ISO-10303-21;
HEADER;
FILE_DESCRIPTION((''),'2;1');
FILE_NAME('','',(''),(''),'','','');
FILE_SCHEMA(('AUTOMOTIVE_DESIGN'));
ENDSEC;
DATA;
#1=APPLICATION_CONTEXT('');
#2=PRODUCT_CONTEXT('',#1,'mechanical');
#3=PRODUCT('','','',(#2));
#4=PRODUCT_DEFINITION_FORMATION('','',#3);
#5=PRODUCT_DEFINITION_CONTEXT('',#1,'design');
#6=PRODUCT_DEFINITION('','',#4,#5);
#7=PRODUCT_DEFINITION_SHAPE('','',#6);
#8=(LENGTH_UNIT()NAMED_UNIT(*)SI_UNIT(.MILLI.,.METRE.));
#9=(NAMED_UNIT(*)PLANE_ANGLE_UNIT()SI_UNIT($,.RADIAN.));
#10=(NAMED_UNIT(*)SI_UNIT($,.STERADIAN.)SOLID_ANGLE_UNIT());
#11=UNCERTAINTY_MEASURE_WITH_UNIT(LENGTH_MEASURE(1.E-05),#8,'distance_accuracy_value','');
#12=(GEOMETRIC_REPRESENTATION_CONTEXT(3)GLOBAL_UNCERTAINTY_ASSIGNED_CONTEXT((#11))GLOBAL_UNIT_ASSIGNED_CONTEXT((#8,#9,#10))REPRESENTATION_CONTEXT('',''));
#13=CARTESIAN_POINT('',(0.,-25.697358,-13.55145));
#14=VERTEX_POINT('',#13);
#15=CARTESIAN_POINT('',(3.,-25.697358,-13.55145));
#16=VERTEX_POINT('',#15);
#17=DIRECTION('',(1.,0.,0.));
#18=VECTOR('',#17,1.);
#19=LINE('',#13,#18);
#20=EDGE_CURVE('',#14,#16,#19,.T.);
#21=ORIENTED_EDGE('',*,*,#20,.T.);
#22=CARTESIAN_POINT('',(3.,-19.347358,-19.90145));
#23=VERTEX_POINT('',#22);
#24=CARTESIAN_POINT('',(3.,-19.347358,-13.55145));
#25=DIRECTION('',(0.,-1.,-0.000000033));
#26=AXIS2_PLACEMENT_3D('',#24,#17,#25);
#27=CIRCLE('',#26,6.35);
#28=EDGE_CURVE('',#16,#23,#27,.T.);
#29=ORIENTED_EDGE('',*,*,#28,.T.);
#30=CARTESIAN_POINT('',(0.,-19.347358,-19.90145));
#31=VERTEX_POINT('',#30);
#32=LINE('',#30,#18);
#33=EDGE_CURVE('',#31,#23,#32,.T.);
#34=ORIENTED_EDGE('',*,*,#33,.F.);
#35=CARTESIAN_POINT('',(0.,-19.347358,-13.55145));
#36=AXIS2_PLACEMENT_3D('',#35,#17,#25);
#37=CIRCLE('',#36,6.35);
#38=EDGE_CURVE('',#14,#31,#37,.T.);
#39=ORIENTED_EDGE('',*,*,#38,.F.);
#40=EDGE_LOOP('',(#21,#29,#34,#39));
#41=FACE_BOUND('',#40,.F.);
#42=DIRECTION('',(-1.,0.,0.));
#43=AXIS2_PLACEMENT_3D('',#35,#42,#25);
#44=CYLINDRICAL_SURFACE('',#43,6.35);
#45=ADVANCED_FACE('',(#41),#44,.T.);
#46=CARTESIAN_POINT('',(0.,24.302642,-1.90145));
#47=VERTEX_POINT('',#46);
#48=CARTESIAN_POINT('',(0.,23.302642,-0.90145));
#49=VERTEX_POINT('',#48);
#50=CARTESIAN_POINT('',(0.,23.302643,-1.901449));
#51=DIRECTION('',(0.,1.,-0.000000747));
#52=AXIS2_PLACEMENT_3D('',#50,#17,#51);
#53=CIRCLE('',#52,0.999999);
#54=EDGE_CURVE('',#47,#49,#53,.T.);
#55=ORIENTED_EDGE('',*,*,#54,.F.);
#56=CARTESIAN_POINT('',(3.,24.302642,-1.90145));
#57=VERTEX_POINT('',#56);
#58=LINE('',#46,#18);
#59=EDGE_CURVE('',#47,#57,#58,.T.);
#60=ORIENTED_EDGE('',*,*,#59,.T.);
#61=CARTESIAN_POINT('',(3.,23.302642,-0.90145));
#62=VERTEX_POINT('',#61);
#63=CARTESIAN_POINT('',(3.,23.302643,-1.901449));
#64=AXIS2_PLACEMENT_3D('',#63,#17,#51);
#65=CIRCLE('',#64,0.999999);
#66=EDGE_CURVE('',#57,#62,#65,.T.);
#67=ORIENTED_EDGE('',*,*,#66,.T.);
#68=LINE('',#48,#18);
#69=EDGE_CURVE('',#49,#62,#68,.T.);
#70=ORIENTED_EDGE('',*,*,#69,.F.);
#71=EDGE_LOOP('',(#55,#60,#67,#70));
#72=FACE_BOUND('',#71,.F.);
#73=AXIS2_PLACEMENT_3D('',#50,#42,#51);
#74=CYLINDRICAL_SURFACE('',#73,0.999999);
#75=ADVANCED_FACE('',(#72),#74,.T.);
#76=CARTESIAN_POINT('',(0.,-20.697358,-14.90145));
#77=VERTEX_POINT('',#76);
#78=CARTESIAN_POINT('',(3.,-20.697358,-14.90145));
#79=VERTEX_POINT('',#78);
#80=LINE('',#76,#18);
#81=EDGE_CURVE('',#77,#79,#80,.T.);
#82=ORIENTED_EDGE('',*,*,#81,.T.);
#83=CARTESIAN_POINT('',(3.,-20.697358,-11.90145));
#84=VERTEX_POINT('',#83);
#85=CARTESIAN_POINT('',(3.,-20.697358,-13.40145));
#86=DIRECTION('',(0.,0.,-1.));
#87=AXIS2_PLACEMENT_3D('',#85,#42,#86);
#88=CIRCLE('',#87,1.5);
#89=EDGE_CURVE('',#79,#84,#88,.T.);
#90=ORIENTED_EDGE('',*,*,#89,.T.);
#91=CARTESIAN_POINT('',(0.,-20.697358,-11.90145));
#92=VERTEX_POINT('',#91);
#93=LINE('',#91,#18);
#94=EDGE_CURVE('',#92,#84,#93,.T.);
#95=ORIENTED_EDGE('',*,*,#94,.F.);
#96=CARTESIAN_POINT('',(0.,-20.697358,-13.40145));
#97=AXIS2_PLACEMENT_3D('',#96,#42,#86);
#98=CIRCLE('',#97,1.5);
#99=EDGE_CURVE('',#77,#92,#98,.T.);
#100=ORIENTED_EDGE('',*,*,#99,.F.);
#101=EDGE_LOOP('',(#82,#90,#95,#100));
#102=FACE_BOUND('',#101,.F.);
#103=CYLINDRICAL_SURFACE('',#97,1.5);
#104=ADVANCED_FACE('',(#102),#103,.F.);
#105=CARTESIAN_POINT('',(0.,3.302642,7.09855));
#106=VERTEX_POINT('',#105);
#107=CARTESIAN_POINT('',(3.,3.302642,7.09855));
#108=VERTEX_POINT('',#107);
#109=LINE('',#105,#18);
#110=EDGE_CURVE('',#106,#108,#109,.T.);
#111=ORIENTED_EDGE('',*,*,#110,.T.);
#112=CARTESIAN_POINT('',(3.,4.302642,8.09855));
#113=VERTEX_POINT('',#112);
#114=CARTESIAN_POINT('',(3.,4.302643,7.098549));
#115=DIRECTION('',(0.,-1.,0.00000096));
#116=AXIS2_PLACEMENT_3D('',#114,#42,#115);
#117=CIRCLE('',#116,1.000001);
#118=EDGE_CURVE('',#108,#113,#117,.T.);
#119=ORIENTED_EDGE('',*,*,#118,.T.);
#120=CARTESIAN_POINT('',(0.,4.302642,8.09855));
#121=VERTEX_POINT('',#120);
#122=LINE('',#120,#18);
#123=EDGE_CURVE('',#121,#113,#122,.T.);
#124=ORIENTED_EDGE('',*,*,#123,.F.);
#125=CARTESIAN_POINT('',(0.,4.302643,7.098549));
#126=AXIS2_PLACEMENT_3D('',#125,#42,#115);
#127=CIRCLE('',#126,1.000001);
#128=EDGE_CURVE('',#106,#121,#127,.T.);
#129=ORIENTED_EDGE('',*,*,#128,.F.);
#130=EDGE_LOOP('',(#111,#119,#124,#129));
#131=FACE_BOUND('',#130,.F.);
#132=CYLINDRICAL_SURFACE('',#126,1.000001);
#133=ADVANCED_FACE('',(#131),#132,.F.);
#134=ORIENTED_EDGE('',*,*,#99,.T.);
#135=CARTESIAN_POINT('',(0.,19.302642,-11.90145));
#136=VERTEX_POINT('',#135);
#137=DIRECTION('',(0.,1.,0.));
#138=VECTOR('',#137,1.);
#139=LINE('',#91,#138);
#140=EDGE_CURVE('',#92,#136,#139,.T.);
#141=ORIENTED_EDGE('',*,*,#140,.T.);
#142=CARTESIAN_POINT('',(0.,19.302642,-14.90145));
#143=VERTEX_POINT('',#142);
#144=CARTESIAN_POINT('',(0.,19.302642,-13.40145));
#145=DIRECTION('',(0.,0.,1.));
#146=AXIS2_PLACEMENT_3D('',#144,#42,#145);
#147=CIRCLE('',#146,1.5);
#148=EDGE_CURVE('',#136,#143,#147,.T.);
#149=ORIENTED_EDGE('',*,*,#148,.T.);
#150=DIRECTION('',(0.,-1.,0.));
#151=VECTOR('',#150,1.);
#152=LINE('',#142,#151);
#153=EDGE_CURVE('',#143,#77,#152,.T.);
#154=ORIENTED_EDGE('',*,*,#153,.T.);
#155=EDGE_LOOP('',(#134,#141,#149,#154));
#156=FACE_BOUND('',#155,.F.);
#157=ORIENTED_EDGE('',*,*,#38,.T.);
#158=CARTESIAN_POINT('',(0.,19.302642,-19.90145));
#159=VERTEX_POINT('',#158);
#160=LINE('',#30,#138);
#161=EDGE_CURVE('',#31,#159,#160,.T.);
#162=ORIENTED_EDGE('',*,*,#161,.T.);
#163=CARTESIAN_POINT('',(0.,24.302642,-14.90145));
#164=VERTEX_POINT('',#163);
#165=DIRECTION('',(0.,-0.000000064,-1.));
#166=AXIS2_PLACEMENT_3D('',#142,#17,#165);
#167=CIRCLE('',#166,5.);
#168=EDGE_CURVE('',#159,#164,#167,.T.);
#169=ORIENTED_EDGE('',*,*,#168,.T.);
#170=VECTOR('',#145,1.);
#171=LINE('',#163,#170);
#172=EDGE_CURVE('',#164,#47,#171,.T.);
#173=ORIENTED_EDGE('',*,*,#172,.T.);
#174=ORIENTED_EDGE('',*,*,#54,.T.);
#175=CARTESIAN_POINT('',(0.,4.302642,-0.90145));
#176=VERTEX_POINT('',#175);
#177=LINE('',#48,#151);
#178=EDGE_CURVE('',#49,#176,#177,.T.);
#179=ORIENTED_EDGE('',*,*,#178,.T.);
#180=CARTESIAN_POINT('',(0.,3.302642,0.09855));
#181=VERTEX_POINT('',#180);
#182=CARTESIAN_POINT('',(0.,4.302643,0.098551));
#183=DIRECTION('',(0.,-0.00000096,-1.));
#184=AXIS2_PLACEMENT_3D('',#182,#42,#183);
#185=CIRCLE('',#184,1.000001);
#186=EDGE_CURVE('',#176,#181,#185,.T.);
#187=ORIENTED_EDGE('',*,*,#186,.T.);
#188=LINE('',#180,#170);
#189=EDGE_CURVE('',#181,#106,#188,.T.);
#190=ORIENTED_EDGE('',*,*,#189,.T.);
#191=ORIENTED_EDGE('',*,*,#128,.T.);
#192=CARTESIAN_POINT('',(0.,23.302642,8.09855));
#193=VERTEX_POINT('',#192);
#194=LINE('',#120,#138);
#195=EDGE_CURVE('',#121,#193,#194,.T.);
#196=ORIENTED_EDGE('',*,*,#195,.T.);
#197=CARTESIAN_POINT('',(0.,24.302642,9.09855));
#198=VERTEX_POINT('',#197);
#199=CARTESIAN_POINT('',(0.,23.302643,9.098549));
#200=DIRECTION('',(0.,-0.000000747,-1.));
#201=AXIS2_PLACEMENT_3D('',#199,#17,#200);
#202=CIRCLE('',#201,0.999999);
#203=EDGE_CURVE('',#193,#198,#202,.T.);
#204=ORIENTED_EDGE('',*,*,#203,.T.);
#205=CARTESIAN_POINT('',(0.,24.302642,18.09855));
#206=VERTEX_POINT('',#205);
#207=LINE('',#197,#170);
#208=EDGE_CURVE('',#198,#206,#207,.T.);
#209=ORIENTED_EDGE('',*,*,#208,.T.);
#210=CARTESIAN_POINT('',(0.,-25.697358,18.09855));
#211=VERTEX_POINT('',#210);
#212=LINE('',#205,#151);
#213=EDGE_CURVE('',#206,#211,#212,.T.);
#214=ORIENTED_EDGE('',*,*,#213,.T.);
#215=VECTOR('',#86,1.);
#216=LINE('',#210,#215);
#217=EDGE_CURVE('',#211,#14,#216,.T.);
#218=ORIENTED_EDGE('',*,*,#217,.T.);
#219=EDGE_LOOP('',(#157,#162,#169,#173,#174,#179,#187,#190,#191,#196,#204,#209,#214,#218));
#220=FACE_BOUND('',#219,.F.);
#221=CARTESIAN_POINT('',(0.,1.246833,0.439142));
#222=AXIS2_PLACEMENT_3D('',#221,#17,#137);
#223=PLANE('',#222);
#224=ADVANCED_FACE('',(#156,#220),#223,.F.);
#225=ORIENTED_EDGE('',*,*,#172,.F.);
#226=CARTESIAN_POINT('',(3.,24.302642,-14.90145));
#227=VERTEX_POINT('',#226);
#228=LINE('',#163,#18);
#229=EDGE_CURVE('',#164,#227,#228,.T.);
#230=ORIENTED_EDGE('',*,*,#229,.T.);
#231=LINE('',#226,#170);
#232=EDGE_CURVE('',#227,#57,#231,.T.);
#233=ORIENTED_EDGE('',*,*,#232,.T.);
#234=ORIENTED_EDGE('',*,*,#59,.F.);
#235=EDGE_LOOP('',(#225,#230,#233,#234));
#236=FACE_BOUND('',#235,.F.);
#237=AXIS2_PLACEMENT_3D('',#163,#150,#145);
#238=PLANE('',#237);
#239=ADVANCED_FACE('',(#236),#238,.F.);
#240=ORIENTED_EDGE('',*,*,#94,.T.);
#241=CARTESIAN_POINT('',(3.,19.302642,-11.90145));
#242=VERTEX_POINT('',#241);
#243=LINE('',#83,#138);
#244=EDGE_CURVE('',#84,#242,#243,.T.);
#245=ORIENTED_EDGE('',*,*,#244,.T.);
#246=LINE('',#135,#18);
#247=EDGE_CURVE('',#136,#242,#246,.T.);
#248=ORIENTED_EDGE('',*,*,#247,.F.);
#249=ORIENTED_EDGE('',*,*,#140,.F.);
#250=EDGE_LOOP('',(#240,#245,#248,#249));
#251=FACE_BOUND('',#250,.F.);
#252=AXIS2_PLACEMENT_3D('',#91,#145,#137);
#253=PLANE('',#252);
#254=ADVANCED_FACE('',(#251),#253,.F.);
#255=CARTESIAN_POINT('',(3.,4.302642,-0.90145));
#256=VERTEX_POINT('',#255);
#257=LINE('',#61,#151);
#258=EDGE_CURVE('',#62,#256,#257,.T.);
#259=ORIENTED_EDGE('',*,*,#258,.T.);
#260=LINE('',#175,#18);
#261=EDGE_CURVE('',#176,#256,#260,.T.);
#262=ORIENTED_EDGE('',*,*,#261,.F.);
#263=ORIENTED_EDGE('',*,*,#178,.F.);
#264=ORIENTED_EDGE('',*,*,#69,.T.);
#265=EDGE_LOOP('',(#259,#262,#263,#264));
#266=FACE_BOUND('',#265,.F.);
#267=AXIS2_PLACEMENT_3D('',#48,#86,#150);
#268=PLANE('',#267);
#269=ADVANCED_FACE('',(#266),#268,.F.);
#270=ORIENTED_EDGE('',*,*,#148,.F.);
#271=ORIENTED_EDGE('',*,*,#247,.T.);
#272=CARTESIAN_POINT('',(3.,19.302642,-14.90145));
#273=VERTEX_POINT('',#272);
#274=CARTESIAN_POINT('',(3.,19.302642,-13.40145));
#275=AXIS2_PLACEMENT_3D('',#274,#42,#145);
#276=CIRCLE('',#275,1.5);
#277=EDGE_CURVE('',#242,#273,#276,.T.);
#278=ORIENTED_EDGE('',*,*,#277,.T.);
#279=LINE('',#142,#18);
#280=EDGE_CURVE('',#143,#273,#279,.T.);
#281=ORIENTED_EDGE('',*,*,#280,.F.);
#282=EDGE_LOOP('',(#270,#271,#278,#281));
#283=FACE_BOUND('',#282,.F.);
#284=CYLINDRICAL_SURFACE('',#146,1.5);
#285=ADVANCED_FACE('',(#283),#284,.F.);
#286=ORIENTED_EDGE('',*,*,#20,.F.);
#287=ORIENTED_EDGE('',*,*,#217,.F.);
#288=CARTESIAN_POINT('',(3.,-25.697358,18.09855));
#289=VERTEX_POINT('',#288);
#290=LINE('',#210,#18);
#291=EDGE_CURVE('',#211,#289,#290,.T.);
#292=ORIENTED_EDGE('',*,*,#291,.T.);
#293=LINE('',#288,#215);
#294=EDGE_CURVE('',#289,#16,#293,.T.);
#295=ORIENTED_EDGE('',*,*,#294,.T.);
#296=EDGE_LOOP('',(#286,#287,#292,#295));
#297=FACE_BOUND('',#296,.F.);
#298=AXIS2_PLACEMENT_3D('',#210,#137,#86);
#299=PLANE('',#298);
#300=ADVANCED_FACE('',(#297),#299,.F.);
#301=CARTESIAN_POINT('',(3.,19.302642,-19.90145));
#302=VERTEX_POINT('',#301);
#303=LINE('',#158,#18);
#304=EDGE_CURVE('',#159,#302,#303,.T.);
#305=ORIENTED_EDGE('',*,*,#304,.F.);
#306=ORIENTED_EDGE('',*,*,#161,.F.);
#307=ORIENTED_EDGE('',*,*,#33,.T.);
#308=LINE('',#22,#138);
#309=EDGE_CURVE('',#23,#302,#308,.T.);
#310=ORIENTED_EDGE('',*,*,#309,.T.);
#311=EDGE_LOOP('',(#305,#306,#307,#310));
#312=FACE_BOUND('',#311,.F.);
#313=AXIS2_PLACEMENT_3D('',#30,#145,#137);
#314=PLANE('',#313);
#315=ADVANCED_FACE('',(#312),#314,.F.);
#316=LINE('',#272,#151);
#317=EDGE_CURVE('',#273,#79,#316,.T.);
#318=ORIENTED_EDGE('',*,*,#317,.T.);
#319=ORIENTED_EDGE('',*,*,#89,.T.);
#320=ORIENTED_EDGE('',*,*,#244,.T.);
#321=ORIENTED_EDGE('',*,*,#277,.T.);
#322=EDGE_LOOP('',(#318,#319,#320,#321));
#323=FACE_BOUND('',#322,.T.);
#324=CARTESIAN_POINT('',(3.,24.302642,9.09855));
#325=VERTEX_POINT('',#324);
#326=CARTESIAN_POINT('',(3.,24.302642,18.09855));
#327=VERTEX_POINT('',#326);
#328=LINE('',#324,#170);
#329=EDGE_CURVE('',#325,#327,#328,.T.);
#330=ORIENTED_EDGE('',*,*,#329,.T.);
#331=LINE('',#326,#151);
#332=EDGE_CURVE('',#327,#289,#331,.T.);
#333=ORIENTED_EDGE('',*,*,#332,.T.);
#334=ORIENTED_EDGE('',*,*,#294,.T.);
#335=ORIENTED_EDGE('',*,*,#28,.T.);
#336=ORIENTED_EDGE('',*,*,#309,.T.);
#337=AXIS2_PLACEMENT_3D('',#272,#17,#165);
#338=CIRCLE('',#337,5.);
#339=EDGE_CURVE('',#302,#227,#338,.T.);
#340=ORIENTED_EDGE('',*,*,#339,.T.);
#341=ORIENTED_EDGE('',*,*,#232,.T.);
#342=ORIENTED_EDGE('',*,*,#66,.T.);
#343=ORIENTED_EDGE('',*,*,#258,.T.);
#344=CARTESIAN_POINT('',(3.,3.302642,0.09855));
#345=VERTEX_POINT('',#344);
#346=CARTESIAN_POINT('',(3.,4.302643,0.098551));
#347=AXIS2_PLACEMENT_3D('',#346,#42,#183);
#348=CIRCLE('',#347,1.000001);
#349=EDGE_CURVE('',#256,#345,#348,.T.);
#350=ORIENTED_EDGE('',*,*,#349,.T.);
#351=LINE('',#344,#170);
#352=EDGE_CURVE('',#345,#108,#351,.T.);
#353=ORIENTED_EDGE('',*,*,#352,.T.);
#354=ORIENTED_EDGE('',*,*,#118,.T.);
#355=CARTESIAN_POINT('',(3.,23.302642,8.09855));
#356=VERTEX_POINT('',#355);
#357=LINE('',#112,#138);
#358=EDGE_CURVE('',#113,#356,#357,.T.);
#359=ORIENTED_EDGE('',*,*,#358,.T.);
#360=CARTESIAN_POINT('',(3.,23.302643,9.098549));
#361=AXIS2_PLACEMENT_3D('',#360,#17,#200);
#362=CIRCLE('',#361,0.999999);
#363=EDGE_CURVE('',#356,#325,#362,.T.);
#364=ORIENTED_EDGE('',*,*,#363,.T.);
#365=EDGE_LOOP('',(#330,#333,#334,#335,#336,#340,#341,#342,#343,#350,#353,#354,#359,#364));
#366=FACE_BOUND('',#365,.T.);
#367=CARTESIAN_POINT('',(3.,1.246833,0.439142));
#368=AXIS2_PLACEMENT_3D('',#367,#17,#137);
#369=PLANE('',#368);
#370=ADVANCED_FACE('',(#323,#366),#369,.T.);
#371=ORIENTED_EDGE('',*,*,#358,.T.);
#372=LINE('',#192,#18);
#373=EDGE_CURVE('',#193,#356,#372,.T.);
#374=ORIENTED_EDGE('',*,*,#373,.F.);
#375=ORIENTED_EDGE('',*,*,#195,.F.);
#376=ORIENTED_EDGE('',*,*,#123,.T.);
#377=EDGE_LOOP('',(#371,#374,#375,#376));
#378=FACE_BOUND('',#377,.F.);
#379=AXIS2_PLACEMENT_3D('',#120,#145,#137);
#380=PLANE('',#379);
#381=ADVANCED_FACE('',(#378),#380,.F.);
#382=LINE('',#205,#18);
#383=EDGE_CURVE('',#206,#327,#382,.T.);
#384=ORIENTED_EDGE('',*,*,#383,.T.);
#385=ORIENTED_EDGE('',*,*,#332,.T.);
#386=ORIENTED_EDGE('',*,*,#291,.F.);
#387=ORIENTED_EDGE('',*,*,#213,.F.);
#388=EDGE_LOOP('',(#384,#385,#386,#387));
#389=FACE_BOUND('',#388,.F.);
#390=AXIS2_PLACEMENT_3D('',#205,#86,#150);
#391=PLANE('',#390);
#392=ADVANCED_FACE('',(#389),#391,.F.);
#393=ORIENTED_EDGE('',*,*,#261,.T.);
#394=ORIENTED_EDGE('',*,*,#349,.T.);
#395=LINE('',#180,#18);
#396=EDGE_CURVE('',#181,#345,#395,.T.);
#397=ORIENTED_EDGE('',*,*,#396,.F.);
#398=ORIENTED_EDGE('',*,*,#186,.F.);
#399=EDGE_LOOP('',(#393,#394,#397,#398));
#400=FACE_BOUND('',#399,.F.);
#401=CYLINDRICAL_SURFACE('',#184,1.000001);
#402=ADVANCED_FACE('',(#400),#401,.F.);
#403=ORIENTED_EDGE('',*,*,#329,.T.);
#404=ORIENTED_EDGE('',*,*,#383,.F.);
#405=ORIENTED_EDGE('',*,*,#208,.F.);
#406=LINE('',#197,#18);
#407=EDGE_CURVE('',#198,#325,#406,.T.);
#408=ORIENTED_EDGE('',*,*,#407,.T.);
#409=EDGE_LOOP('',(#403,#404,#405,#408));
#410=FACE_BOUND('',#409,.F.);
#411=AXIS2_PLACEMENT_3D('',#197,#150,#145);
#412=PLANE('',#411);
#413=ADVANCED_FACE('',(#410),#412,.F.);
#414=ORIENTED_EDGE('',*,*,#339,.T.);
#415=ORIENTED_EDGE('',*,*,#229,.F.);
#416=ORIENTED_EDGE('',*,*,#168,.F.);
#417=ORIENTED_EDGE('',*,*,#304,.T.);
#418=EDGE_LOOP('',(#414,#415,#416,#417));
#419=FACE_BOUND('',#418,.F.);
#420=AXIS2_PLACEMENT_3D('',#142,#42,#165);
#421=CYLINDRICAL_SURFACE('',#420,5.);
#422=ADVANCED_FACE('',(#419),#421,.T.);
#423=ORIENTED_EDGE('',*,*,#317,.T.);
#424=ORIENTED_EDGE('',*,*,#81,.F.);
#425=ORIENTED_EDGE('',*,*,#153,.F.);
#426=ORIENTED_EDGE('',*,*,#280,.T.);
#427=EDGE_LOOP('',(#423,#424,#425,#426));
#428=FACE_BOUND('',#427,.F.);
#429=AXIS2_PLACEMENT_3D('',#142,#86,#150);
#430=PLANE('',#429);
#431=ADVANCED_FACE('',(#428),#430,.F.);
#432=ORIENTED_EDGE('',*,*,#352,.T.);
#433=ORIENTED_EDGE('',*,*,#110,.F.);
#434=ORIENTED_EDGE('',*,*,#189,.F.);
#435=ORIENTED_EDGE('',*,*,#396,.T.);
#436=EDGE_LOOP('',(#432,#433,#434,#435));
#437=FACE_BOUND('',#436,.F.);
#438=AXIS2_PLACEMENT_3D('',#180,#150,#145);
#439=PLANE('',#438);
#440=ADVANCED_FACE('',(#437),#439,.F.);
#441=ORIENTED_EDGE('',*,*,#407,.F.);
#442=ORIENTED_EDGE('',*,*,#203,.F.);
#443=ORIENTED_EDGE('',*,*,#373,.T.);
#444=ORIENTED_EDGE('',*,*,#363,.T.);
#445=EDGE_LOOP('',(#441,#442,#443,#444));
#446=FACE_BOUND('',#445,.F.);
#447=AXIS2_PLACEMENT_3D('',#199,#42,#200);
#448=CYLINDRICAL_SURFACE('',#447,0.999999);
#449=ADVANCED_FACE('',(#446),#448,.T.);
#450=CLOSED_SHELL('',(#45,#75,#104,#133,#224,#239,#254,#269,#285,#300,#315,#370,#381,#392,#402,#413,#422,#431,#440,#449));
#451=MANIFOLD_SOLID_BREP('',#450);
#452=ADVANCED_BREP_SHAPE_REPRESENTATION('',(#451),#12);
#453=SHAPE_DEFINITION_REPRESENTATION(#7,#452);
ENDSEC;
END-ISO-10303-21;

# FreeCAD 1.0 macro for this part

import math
import FreeCAD as App
import Part
import Sketcher
Q = App.Units.Quantity

doc = App.newDocument("Part")
body = doc.addObject("PartDesign::Body", "Body")

sketch1 = body.newObject("Sketcher::SketchObject", "Sketch")
sketch1.AttachmentSupport = (doc.getObject("YZ_Plane"), [""])
sketch1.MapMode = "FlatFace"
sketch1.addGeometry([
    Part.LineSegment(App.Vector(24.3, 18.1, 0), App.Vector(-25.7, 18.1, 0)),
    Part.LineSegment(App.Vector(-25.7, 18.1, 0), App.Vector(-25.7, -13.6, 0)),
    Part.ArcOfCircle(Part.Circle(App.Vector(-19.3, -13.6, 0), App.Vector(0, 0, 1), 6.4), math.radians(-180), math.radians(-90)),
    Part.LineSegment(App.Vector(-19.3, -19.9, 0), App.Vector(19.3, -19.9, 0)),
    Part.ArcOfCircle(Part.Circle(App.Vector(19.3, -14.9, 0), App.Vector(0, 0, 1), 5), math.radians(-90), math.radians(0)),
    Part.LineSegment(App.Vector(24.3, -14.9, 0), App.Vector(24.3, -1.9, 0)),
    Part.ArcOfCircle(Part.Circle(App.Vector(23.3, -1.9, 0), App.Vector(0, 0, 1), 1), math.radians(0), math.radians(90)),
    Part.LineSegment(App.Vector(23.3, -0.9, 0), App.Vector(4.3, -0.9, 0)),
    Part.ArcOfCircle(Part.Circle(App.Vector(4.3, 0.1, 0), App.Vector(0, 0, 1), 1), math.radians(-180), math.radians(-90)),
    Part.LineSegment(App.Vector(3.3, 0.1, 0), App.Vector(3.3, 7.1, 0)),
    Part.ArcOfCircle(Part.Circle(App.Vector(4.3, 7.1, 0), App.Vector(0, 0, 1), 1), math.radians(90), math.radians(180)),
    Part.LineSegment(App.Vector(4.3, 8.1, 0), App.Vector(23.3, 8.1, 0)),
    Part.ArcOfCircle(Part.Circle(App.Vector(23.3, 9.1, 0), App.Vector(0, 0, 1), 1), math.radians(-90), math.radians(0)),
    Part.LineSegment(App.Vector(24.3, 9.1, 0), App.Vector(24.3, 18.1, 0)),
    Part.LineSegment(App.Vector(19.3, -14.9, 0), App.Vector(-20.7, -14.9, 0)),
    Part.ArcOfCircle(Part.Circle(App.Vector(-20.7, -13.4, 0), App.Vector(0, 0, 1), 1.5), math.radians(90), math.radians(270)),
    Part.LineSegment(App.Vector(-20.7, -11.9, 0), App.Vector(19.3, -11.9, 0)),
    Part.ArcOfCircle(Part.Circle(App.Vector(19.3, -13.4, 0), App.Vector(0, 0, 1), 1.5), math.radians(-90), math.radians(90)),
], False)
sketch1.addConstraint([
    Sketcher.Constraint("Coincident", 0, 2, 1, 1),
    Sketcher.Constraint("Tangent", 1, 2, 2, 1),
    Sketcher.Constraint("Tangent", 2, 2, 3, 1),
    Sketcher.Constraint("Tangent", 3, 2, 4, 1),
    Sketcher.Constraint("Tangent", 4, 2, 5, 1),
    Sketcher.Constraint("Tangent", 5, 2, 6, 1),
    Sketcher.Constraint("Tangent", 6, 2, 7, 1),
    Sketcher.Constraint("Tangent", 7, 2, 8, 2),
    Sketcher.Constraint("Tangent", 8, 1, 9, 1),
    Sketcher.Constraint("Tangent", 9, 2, 10, 2),
    Sketcher.Constraint("Tangent", 10, 1, 11, 1),
    Sketcher.Constraint("Tangent", 11, 2, 12, 1),
    Sketcher.Constraint("Tangent", 12, 2, 13, 1),
    Sketcher.Constraint("Coincident", 13, 2, 0, 1),
    Sketcher.Constraint("Tangent", 14, 2, 15, 2),
    Sketcher.Constraint("Tangent", 15, 1, 16, 1),
    Sketcher.Constraint("Tangent", 16, 2, 17, 2),
    Sketcher.Constraint("Tangent", 17, 1, 14, 1),
    Sketcher.Constraint("Horizontal", 0),
    Sketcher.Constraint("Vertical", 1),
    Sketcher.Constraint("Horizontal", 3),
    Sketcher.Constraint("Vertical", 5),
    Sketcher.Constraint("Horizontal", 7),
    Sketcher.Constraint("Vertical", 9),
    Sketcher.Constraint("Horizontal", 11),
    Sketcher.Constraint("Vertical", 13),
    Sketcher.Constraint("Horizontal", 14),
    Sketcher.Constraint("Horizontal", 16),
    Sketcher.Constraint("Coincident", 17, 1, 4, 3),
    Sketcher.Constraint("Equal", 6, 8),
    Sketcher.Constraint("Equal", 8, 10),
    Sketcher.Constraint("Equal", 10, 12),
    Sketcher.Constraint("Vertical", 6, 3, 12, 3),
    Sketcher.Constraint("Radius", 4, Q("5 mm")),
    Sketcher.Constraint("Radius", 6, Q("0.999999 mm")),
    Sketcher.Constraint("Radius", 15, Q("1.5 mm")),
    Sketcher.Constraint("DistanceX", 0, 2, 0, 1, Q("50 mm")),
    Sketcher.Constraint("DistanceX", 7, 2, 7, 1, Q("19 mm")),
    Sketcher.Constraint("DistanceX", 14, 2, 14, 1, Q("40 mm")),
    Sketcher.Constraint("DistanceY", 5, 1, 5, 2, Q("13 mm")),
    Sketcher.Constraint("DistanceY", 9, 1, 9, 2, Q("7 mm")),
    Sketcher.Constraint("DistanceY", 13, 1, 13, 2, Q("9 mm")),
    Sketcher.Constraint("Radius", 2, Q("6.35 mm")),
    Sketcher.Constraint("DistanceY", 2, 3, -1, 1, Q("13.55145 mm")),
    Sketcher.Constraint("DistanceX", 15, 3, -1, 1, Q("20.697358 mm")),
])
pad1 = body.newObject("PartDesign::Pad", "Pad")
pad1.Profile = sketch1
pad1.Length = 3

doc.recompute()
